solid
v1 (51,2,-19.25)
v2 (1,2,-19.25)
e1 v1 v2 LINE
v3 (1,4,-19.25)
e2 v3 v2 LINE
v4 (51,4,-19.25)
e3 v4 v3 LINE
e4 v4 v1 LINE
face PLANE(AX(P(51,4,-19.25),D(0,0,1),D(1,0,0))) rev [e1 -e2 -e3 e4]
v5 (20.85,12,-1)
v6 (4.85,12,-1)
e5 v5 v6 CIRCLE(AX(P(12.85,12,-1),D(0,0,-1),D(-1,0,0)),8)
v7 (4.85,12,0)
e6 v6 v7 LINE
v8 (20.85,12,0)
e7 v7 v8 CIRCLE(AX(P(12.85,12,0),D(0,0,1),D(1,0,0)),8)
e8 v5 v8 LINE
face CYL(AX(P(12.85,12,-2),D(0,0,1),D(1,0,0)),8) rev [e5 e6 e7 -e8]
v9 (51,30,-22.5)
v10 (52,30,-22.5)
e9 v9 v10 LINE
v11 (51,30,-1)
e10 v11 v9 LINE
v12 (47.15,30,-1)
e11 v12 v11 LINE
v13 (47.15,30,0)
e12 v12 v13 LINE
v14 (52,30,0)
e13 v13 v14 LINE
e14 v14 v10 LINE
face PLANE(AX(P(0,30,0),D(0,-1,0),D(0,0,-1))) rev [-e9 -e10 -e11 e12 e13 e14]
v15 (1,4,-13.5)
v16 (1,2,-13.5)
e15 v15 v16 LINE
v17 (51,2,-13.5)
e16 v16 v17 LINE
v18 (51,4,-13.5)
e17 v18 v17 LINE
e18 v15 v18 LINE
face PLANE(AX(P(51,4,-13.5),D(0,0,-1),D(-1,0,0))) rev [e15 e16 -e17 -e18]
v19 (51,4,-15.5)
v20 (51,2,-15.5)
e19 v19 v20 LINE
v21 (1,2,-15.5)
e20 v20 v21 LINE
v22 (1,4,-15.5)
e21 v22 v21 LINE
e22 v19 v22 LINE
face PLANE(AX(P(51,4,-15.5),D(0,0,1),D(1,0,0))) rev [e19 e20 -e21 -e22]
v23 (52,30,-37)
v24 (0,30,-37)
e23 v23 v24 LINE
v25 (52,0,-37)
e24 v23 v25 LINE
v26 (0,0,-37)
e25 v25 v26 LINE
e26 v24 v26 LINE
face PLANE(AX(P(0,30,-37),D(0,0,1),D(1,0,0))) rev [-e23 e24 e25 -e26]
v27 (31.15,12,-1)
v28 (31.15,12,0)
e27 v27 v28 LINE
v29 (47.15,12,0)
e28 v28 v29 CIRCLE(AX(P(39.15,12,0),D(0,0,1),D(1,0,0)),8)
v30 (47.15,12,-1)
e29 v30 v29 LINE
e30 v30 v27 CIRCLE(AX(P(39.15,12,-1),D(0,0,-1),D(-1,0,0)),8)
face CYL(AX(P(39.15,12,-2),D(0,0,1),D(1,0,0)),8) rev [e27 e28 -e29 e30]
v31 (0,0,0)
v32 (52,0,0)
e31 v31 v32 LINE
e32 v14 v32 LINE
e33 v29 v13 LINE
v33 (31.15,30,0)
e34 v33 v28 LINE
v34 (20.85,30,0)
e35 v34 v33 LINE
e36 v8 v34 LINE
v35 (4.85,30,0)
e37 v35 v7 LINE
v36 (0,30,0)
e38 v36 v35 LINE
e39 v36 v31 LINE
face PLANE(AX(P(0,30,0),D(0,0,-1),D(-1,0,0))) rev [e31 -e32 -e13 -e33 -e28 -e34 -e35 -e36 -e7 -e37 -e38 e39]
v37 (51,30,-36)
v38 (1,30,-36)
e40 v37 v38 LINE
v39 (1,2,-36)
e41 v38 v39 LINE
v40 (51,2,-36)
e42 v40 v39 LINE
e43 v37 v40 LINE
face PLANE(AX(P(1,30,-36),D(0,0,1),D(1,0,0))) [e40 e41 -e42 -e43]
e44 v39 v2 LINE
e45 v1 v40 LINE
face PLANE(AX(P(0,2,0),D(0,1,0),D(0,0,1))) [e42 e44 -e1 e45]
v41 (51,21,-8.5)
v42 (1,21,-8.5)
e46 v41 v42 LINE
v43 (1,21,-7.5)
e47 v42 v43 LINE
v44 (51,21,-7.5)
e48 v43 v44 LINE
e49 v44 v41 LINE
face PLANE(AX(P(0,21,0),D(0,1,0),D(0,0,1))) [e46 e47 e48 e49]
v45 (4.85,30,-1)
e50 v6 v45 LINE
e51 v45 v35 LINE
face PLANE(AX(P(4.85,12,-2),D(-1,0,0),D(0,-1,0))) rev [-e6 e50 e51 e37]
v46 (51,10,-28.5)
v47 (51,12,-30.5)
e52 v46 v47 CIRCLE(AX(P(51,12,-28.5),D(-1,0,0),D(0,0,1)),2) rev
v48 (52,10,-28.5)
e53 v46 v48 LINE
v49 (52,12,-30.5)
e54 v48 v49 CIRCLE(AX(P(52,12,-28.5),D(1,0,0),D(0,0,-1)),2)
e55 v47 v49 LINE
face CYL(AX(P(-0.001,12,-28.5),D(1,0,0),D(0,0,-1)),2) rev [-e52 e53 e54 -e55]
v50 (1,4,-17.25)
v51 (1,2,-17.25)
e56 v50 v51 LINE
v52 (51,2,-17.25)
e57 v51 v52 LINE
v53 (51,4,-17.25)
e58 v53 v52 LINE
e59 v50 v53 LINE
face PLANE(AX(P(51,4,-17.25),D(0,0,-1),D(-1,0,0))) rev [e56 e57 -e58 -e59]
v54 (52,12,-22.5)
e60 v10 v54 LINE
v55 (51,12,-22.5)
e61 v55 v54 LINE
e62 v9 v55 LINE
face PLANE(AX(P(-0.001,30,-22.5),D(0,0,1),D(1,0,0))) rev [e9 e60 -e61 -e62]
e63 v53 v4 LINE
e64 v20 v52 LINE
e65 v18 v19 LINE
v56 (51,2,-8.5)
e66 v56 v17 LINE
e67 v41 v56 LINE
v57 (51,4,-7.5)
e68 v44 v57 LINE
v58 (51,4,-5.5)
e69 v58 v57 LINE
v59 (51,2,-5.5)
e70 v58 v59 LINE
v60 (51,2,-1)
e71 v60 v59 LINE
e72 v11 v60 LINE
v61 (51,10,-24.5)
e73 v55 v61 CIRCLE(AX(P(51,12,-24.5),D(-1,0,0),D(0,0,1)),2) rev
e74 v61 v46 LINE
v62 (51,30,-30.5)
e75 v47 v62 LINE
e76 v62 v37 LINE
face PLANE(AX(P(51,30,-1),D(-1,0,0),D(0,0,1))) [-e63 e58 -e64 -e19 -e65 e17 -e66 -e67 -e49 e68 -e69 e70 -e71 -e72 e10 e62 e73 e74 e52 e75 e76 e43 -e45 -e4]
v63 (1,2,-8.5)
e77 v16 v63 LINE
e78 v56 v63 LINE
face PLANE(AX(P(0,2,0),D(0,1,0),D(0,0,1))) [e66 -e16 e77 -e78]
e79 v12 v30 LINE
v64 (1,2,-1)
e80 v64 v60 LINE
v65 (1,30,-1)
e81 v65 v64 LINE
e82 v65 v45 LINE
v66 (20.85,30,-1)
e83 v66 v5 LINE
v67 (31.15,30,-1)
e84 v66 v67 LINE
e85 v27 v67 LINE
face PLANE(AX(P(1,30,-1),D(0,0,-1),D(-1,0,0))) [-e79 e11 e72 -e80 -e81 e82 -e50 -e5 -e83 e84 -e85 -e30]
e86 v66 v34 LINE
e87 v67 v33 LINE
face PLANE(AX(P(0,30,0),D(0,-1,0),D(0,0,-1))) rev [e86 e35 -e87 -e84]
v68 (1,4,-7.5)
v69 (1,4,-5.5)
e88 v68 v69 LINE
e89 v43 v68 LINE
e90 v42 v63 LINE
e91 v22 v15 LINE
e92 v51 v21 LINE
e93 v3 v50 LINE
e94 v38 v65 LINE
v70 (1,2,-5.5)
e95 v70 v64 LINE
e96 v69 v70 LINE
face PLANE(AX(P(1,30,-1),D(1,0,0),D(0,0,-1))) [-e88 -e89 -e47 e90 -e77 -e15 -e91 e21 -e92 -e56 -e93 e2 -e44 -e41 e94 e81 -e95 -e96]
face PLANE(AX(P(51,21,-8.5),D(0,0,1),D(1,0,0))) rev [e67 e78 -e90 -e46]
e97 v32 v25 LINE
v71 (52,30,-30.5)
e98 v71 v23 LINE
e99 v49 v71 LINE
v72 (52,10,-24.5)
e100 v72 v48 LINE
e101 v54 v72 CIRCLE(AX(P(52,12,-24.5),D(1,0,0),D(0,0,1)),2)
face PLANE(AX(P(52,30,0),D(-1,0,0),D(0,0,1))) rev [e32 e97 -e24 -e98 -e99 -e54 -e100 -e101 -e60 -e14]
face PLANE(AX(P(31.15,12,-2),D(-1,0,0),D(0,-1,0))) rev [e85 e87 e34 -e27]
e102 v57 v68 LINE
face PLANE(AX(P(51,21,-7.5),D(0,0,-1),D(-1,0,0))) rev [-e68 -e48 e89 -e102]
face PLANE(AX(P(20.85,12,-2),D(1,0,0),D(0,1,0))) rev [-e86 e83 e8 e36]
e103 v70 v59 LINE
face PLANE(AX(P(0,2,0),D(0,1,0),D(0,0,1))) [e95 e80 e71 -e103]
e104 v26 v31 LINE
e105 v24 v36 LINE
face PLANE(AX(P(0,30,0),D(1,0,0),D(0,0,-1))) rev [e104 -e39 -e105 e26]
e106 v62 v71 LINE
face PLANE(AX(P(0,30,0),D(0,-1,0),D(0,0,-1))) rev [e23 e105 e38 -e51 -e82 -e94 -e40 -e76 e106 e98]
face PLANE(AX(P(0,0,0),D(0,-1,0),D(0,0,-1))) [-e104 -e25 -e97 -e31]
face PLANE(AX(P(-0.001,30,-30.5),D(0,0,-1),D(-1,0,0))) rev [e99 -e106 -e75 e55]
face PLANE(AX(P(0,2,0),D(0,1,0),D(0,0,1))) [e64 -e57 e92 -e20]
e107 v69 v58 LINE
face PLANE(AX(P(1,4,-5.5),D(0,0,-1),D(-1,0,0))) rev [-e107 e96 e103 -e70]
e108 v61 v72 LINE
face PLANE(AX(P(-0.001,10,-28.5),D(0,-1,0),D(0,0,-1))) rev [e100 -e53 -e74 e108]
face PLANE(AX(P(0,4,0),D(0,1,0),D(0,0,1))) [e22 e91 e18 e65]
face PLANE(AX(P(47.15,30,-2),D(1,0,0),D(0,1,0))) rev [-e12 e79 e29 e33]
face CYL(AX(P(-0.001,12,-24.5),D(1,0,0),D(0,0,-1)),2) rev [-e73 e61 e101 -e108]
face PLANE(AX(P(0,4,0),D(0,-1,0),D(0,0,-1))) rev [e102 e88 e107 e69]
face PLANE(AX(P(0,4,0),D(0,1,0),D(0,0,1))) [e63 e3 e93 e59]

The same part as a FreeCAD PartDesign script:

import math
import FreeCAD as App
import Part
import Sketcher


def add_polygon(sketch, points):
    """Adds a closed chain of lines whose ends are joined by coincident constraints."""
    first, n = sketch.GeometryCount, len(points)
    for a, b in zip(points, points[1:] + points[:1]):
        sketch.addGeometry(Part.LineSegment(App.Vector(*a, 0), App.Vector(*b, 0)), False)
    for i in range(n):
        sketch.addConstraint(Sketcher.Constraint("Coincident", first + i, 2, first + (i + 1) % n, 1))

doc = App.newDocument("Part")
body = doc.addObject("PartDesign::Body", "Body")

# Sketch on XZ plane
sketch1 = body.newObject("Sketcher::SketchObject", "Sketch")
sketch1.AttachmentSupport = (doc.getObject("XZ_Plane"), [""])
sketch1.MapMode = "FlatFace"
add_polygon(sketch1, [(0, -37), (0, 0), (52, 0), (52, -37)])  # lines 0-3
add_polygon(sketch1, [(51, -1), (1, -1), (1, -36), (51, -36)])  # lines 4-7
sketch1.addConstraint(Sketcher.Constraint("Vertical", 0))
sketch1.addConstraint(Sketcher.Constraint("Horizontal", 1))
sketch1.addConstraint(Sketcher.Constraint("Vertical", 2))
sketch1.addConstraint(Sketcher.Constraint("Horizontal", 3))
sketch1.addConstraint(Sketcher.Constraint("Horizontal", 4))
sketch1.addConstraint(Sketcher.Constraint("Vertical", 5))
sketch1.addConstraint(Sketcher.Constraint("Horizontal", 6))
sketch1.addConstraint(Sketcher.Constraint("Vertical", 7))
sketch1.addConstraint(Sketcher.Constraint("Coincident", 0, 2, -1, 1))
sketch1.addConstraint(Sketcher.Constraint("DistanceX", 1, 1, 1, 2, 52.0))
sketch1.addConstraint(Sketcher.Constraint("DistanceX", 4, 2, 4, 1, 50.0))
sketch1.addConstraint(Sketcher.Constraint("DistanceY", 0, 1, 0, 2, 37.0))
sketch1.addConstraint(Sketcher.Constraint("DistanceY", 5, 2, 5, 1, 35.0))
sketch1.addConstraint(Sketcher.Constraint("DistanceX", -1, 1, 4, 2, 1.0))
sketch1.addConstraint(Sketcher.Constraint("DistanceY", 4, 2, -1, 1, 1.0))
pad1 = body.newObject("PartDesign::Pad", "Pad")
pad1.Profile = sketch1
pad1.Length = 30
pad1.Reversed = True

# Sketch on XZ plane
sketch2 = body.newObject("Sketcher::SketchObject", "Sketch001")
sketch2.AttachmentSupport = (doc.getObject("XZ_Plane"), [""])
sketch2.MapMode = "FlatFace"
add_polygon(sketch2, [(0, -37), (0, 0), (52, 0), (52, -37)])  # lines 0-3
sketch2.addConstraint(Sketcher.Constraint("Vertical", 0))
sketch2.addConstraint(Sketcher.Constraint("Horizontal", 1))
sketch2.addConstraint(Sketcher.Constraint("Vertical", 2))
sketch2.addConstraint(Sketcher.Constraint("Horizontal", 3))
sketch2.addConstraint(Sketcher.Constraint("Coincident", 0, 2, -1, 1))
sketch2.addConstraint(Sketcher.Constraint("DistanceX", 1, 1, 1, 2, 52.0))
sketch2.addConstraint(Sketcher.Constraint("DistanceY", 0, 1, 0, 2, 37.0))
pad2 = body.newObject("PartDesign::Pad", "Pad001")
pad2.Profile = sketch2
pad2.Length = 2
pad2.Reversed = True

# Sketch on XY plane
sketch3 = body.newObject("Sketcher::SketchObject", "Sketch002")
sketch3.AttachmentSupport = (doc.getObject("XY_Plane"), [""])
sketch3.MapMode = "FlatFace"
sketch3.addGeometry(Part.LineSegment(App.Vector(5, 30, 0), App.Vector(5, 12, 0)), False)
sketch3.addGeometry(Part.ArcOfCircle(Part.Circle(App.Vector(13, 12, 0), App.Vector(0, 0, 1), 8), math.radians(180), math.radians(360)), False)
sketch3.addGeometry(Part.LineSegment(App.Vector(21, 12, 0), App.Vector(21, 30, 0)), False)
sketch3.addGeometry(Part.LineSegment(App.Vector(21, 30, 0), App.Vector(5, 30, 0)), False)
sketch3.addGeometry(Part.LineSegment(App.Vector(31, 30, 0), App.Vector(31, 12, 0)), False)
sketch3.addGeometry(Part.ArcOfCircle(Part.Circle(App.Vector(39, 12, 0), App.Vector(0, 0, 1), 8), math.radians(180), math.radians(360)), False)
sketch3.addGeometry(Part.LineSegment(App.Vector(47, 12, 0), App.Vector(47, 30, 0)), False)
sketch3.addGeometry(Part.LineSegment(App.Vector(47, 30, 0), App.Vector(31, 30, 0)), False)
sketch3.addConstraint(Sketcher.Constraint("Tangent", 0, 2, 1, 1))
sketch3.addConstraint(Sketcher.Constraint("Tangent", 1, 2, 2, 1))
sketch3.addConstraint(Sketcher.Constraint("Coincident", 2, 2, 3, 1))
sketch3.addConstraint(Sketcher.Constraint("Coincident", 3, 2, 0, 1))
sketch3.addConstraint(Sketcher.Constraint("Tangent", 4, 2, 5, 1))
sketch3.addConstraint(Sketcher.Constraint("Tangent", 5, 2, 6, 1))
sketch3.addConstraint(Sketcher.Constraint("Coincident", 6, 2, 7, 1))
sketch3.addConstraint(Sketcher.Constraint("Coincident", 7, 2, 4, 1))
sketch3.addConstraint(Sketcher.Constraint("Vertical", 0))
sketch3.addConstraint(Sketcher.Constraint("Vertical", 2))
sketch3.addConstraint(Sketcher.Constraint("Horizontal", 3))
sketch3.addConstraint(Sketcher.Constraint("Vertical", 4))
sketch3.addConstraint(Sketcher.Constraint("Vertical", 6))
sketch3.addConstraint(Sketcher.Constraint("Horizontal", 7))
sketch3.addConstraint(Sketcher.Constraint("Equal", 1, 5))
sketch3.addConstraint(Sketcher.Constraint("Horizontal", 1, 3, 5, 3))
sketch3.addConstraint(Sketcher.Constraint("Horizontal", 3, 2, 6, 2))
sketch3.addConstraint(Sketcher.Constraint("Radius", 1, 8.0))
sketch3.addConstraint(Sketcher.Constraint("DistanceY", 0, 2, 0, 1, 18.0))
sketch3.addConstraint(Sketcher.Constraint("DistanceY", -1, 1, 1, 3, 12.0))
sketch3.addConstraint(Sketcher.Constraint("DistanceX", 1, 3, 5, 3, 26.3))
sketch3.addConstraint(Sketcher.Constraint("DistanceX", -1, 1, 1, 3, 12.85))
pocket1 = body.newObject("PartDesign::Pocket", "Pocket")
pocket1.Profile = sketch3
pocket1.Length = 2

# Sketch on XZ plane
sketch4 = body.newObject("Sketcher::SketchObject", "Sketch003")
sketch4.AttachmentSupport = (doc.getObject("XZ_Plane"), [""])
sketch4.MapMode = "FlatFace"
sketch4.AttachmentOffset = App.Placement(App.Vector(0, 0, -2), App.Rotation())
add_polygon(sketch4, [(1, -7.5), (1, -5.5), (51, -5.5), (51, -7.5)])  # lines 0-3
add_polygon(sketch4, [(1, -15.5), (1, -13.5), (51, -13.5), (51, -15.5)])  # lines 4-7
add_polygon(sketch4, [(1, -19.2), (1, -17.2), (51, -17.2), (51, -19.2)])  # lines 8-11
sketch4.addConstraint(Sketcher.Constraint("Vertical", 0))
sketch4.addConstraint(Sketcher.Constraint("Horizontal", 1))
sketch4.addConstraint(Sketcher.Constraint("Vertical", 2))
sketch4.addConstraint(Sketcher.Constraint("Horizontal", 3))
sketch4.addConstraint(Sketcher.Constraint("Vertical", 4))
sketch4.addConstraint(Sketcher.Constraint("Horizontal", 5))
sketch4.addConstraint(Sketcher.Constraint("Vertical", 6))
sketch4.addConstraint(Sketcher.Constraint("Horizontal", 7))
sketch4.addConstraint(Sketcher.Constraint("Vertical", 8))
sketch4.addConstraint(Sketcher.Constraint("Horizontal", 9))
sketch4.addConstraint(Sketcher.Constraint("Vertical", 10))
sketch4.addConstraint(Sketcher.Constraint("Horizontal", 11))
sketch4.addConstraint(Sketcher.Constraint("Vertical", 3, 2, 4, 2))
sketch4.addConstraint(Sketcher.Constraint("Vertical", 2, 2, 5, 2))
sketch4.addConstraint(Sketcher.Constraint("Vertical", 7, 2, 8, 2))
sketch4.addConstraint(Sketcher.Constraint("Vertical", 6, 2, 9, 2))
sketch4.addConstraint(Sketcher.Constraint("Equal", 2, 4))
sketch4.addConstraint(Sketcher.Constraint("Equal", 6, 8))
sketch4.addConstraint(Sketcher.Constraint("DistanceX", 1, 1, 1, 2, 50.0))
sketch4.addConstraint(Sketcher.Constraint("DistanceY", 0, 1, 0, 2, 2.0))
sketch4.addConstraint(Sketcher.Constraint("DistanceX", -1, 1, 0, 2, 1.0))
sketch4.addConstraint(Sketcher.Constraint("DistanceY", 4, 2, 3, 2, 6.0))
sketch4.addConstraint(Sketcher.Constraint("DistanceY", 0, 2, -1, 1, 5.5))
sketch4.addConstraint(Sketcher.Constraint("DistanceY", 8, 2, -1, 1, 17.25))
pad3 = body.newObject("PartDesign::Pad", "Pad002")
pad3.Profile = sketch4
pad3.Length = 2
pad3.Reversed = True

# Sketch on YZ plane
sketch5 = body.newObject("Sketcher::SketchObject", "Sketch004")
sketch5.AttachmentSupport = (doc.getObject("YZ_Plane"), [""])
sketch5.MapMode = "FlatFace"
sketch5.AttachmentOffset = App.Placement(App.Vector(0, 0, 52), App.Rotation())
sketch5.addGeometry(Part.LineSegment(App.Vector(30, -30.5, 0), App.Vector(30, -22.5, 0)), False)
sketch5.addGeometry(Part.LineSegment(App.Vector(30, -22.5, 0), App.Vector(12, -22.5, 0)), False)
sketch5.addGeometry(Part.ArcOfCircle(Part.Circle(App.Vector(12, -24.5, 0), App.Vector(0, 0, 1), 2), math.radians(90), math.radians(180)), False)
sketch5.addGeometry(Part.LineSegment(App.Vector(10, -24.5, 0), App.Vector(10, -28.5, 0)), False)
sketch5.addGeometry(Part.ArcOfCircle(Part.Circle(App.Vector(12, -28.5, 0), App.Vector(0, 0, 1), 2), math.radians(-180), math.radians(-90)), False)
sketch5.addGeometry(Part.LineSegment(App.Vector(12, -30.5, 0), App.Vector(30, -30.5, 0)), False)
sketch5.addConstraint(Sketcher.Constraint("Coincident", 0, 2, 1, 1))
sketch5.addConstraint(Sketcher.Constraint("Tangent", 1, 2, 2, 1))
sketch5.addConstraint(Sketcher.Constraint("Tangent", 2, 2, 3, 1))
sketch5.addConstraint(Sketcher.Constraint("Tangent", 3, 2, 4, 1))
sketch5.addConstraint(Sketcher.Constraint("Tangent", 4, 2, 5, 1))
sketch5.addConstraint(Sketcher.Constraint("Coincident", 5, 2, 0, 1))
sketch5.addConstraint(Sketcher.Constraint("Vertical", 0))
sketch5.addConstraint(Sketcher.Constraint("Horizontal", 1))
sketch5.addConstraint(Sketcher.Constraint("Vertical", 3))
sketch5.addConstraint(Sketcher.Constraint("Horizontal", 5))
sketch5.addConstraint(Sketcher.Constraint("Equal", 2, 4))
sketch5.addConstraint(Sketcher.Constraint("Radius", 2, 2.0))
sketch5.addConstraint(Sketcher.Constraint("DistanceX", 1, 2, 1, 1, 18.0))
sketch5.addConstraint(Sketcher.Constraint("DistanceY", 0, 1, 0, 2, 8.0))
sketch5.addConstraint(Sketcher.Constraint("DistanceX", -1, 1, 2, 3, 12.0))
sketch5.addConstraint(Sketcher.Constraint("DistanceY", 2, 3, -1, 1, 24.5))
pocket2 = body.newObject("PartDesign::Pocket", "Pocket001")
pocket2.Profile = sketch5
pocket2.Type = "UpToFirst"

# Sketch on XZ plane
sketch6 = body.newObject("Sketcher::SketchObject", "Sketch005")
sketch6.AttachmentSupport = (doc.getObject("XZ_Plane"), [""])
sketch6.MapMode = "FlatFace"
sketch6.AttachmentOffset = App.Placement(App.Vector(0, 0, -2), App.Rotation())
add_polygon(sketch6, [(1, -8.5), (1, -7.5), (51, -7.5), (51, -8.5)])  # lines 0-3
sketch6.addConstraint(Sketcher.Constraint("Vertical", 0))
sketch6.addConstraint(Sketcher.Constraint("Horizontal", 1))
sketch6.addConstraint(Sketcher.Constraint("Vertical", 2))
sketch6.addConstraint(Sketcher.Constraint("Horizontal", 3))
sketch6.addConstraint(Sketcher.Constraint("DistanceX", 1, 1, 1, 2, 50.0))
sketch6.addConstraint(Sketcher.Constraint("DistanceY", 0, 1, 0, 2, 1.0))
sketch6.addConstraint(Sketcher.Constraint("DistanceX", -1, 1, 0, 2, 1.0))
sketch6.addConstraint(Sketcher.Constraint("DistanceY", 0, 2, -1, 1, 7.5))
pad4 = body.newObject("PartDesign::Pad", "Pad003")
pad4.Profile = sketch6
pad4.Length = 19
pad4.Reversed = True

doc.recompute()
